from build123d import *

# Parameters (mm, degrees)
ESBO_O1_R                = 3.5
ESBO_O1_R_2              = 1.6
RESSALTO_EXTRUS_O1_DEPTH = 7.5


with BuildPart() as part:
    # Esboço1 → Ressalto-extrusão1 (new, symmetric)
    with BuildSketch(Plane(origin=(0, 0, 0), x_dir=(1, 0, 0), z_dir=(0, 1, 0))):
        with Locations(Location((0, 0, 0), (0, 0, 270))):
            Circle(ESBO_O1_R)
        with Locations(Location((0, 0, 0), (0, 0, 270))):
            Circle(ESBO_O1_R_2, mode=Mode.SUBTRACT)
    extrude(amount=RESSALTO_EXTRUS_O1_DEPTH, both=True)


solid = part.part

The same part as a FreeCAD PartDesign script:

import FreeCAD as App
import Part
import Sketcher

V = App.Vector
Q = App.Units.Quantity

doc = App.newDocument("Part")
params = doc.addObject("Spreadsheet::Sheet", "Params")
for row, (alias, value) in enumerate([
    ("sketch1_diameter", "7 mm"),
    ("sketch1_diameter2", "3.2 mm"),
    ("pad1_length", "15 mm"),
], start=1):
    params.set(f"A{row}", alias)
    params.set(f"B{row}", "=" + value)
    params.setAlias(f"B{row}", alias)

body = doc.addObject("PartDesign::Body", "Body")

# Sketch on XZ plane
sketch1 = doc.addObject("Sketcher::SketchObject", "Sketch")
body.addObject(sketch1)
sketch1.AttachmentSupport = (doc.XZ_Plane, [""])
sketch1.MapMode = "FlatFace"
sketch1.addGeometry([
    Part.Circle(V(0, 0, 0), V(0, 0, 1), 3.5),
    Part.Circle(V(0, 0, 0), V(0, 0, 1), 1.6),
], False)
sketch1.addConstraint([
    Sketcher.Constraint("Coincident", 0, 3, -1, 1),
    Sketcher.Constraint("Coincident", 1, 3, -1, 1),
    Sketcher.Constraint("Diameter", 0, Q("7 mm")),
    Sketcher.Constraint("Diameter", 1, Q("3.2 mm")),
])
sketch1.setExpression("Constraints[2]", "Params.sketch1_diameter")
sketch1.setExpression("Constraints[3]", "Params.sketch1_diameter2")
pad1 = doc.addObject("PartDesign::Pad", "Pad")
body.addObject(pad1)
pad1.Profile = sketch1
pad1.setExpression("Length", "Params.pad1_length")
pad1.Midplane = True

doc.recompute()
